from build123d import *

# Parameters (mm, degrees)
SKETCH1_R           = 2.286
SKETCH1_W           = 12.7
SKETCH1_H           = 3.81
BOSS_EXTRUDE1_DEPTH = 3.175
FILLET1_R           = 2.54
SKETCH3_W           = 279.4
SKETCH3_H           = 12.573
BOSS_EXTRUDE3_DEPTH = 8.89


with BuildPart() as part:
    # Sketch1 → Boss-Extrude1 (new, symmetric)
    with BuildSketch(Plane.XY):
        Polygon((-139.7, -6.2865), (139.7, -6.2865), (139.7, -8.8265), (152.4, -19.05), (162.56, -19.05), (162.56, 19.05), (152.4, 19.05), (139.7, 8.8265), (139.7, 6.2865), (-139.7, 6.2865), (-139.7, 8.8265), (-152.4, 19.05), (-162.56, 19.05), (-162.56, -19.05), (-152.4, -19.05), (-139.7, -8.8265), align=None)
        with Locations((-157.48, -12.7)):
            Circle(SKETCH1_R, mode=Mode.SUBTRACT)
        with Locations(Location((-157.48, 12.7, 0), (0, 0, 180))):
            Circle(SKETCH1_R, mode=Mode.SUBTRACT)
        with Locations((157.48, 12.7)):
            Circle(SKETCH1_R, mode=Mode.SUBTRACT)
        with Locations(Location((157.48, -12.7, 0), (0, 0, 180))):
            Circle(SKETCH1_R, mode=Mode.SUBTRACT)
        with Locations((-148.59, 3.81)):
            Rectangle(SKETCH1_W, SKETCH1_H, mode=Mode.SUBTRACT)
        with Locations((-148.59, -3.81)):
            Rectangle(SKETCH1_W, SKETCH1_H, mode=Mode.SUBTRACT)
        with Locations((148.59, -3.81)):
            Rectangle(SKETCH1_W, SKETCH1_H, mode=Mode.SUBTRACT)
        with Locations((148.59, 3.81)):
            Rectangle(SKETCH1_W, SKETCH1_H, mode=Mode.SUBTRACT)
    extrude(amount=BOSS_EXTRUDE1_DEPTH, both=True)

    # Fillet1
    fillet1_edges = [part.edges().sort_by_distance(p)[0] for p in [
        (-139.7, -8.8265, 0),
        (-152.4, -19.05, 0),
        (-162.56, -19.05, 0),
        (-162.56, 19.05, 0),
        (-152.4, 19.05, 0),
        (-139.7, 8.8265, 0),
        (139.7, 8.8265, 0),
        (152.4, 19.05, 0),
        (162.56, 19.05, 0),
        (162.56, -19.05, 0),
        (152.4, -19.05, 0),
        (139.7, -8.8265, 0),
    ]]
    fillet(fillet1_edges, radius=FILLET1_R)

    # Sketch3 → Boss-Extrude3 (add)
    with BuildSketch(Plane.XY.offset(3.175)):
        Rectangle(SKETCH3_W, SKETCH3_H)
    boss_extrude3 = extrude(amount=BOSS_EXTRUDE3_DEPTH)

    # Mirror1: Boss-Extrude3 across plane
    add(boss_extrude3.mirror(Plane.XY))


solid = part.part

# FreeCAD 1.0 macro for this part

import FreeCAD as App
import Part
import Sketcher

V = App.Vector
Q = App.Units.Quantity


def edges_at(feature, points):
    """Names of the edges that pass closest to the given points."""
    edges = feature.Shape.Edges
    near = lambda p: min(range(len(edges)), key=lambda i: edges[i].distToShape(Part.Vertex(*p))[0])
    return sorted({f"Edge{near(p) + 1}" for p in points})


def add_polygon(sketch, points):
    """Adds a closed chain of lines whose ends are joined by coincident constraints."""
    first, n = sketch.GeometryCount, len(points)
    for a, b in zip(points, points[1:] + points[:1]):
        sketch.addGeometry(Part.LineSegment(App.Vector(*a, 0), App.Vector(*b, 0)), False)
    for i in range(n):
        sketch.addConstraint(Sketcher.Constraint("Coincident", first + i, 2, first + (i + 1) % n, 1))

doc = App.newDocument("Part")
body = doc.addObject("PartDesign::Body", "Body")

# Sketch on XY plane
sketch1 = body.newObject("Sketcher::SketchObject", "Sketch")
sketch1.AttachmentSupport = (doc.getObject("XY_Plane"), [""])
sketch1.MapMode = "FlatFace"
add_polygon(sketch1, [(-139.7, -6.3), (139.7, -6.3), (139.7, -8.8), (152.4, -19.1), (162.6, -19.1), (162.6, 19.1), (152.4, 19.1), (139.7, 8.8), (139.7, 6.3), (-139.7, 6.3), (-139.7, 8.8), (-152.4, 19.1), (-162.6, 19.1), (-162.6, -19.1), (-152.4, -19.1), (-139.7, -8.8)])  # lines 0-15
sketch1.addGeometry(Part.Circle(V(-157.5, -12.7, 0), V(0, 0, 1), 2.3), False)  # 16
add_polygon(sketch1, [(-142.2, -5.7), (-154.9, -5.7), (-154.9, -1.9), (-142.2, -1.9)])  # lines 17-20
sketch1.addGeometry(Part.Circle(V(157.5, -12.7, 0), V(0, 0, 1), 2.3), False)  # 21
add_polygon(sketch1, [(154.9, -5.7), (142.2, -5.7), (142.2, -1.9), (154.9, -1.9)])  # lines 22-25
add_polygon(sketch1, [(-142.2, 1.9), (-154.9, 1.9), (-154.9, 5.7), (-142.2, 5.7)])  # lines 26-29
sketch1.addGeometry(Part.Circle(V(-157.5, 12.7, 0), V(0, 0, 1), 2.3), False)  # 30
add_polygon(sketch1, [(154.9, 1.9), (142.2, 1.9), (142.2, 5.7), (154.9, 5.7)])  # lines 31-34
sketch1.addGeometry(Part.Circle(V(157.5, 12.7, 0), V(0, 0, 1), 2.3), False)  # 35
sketch1.addConstraint([
    Sketcher.Constraint("Horizontal", 0),
    Sketcher.Constraint("Vertical", 1),
    Sketcher.Constraint("Horizontal", 3),
    Sketcher.Constraint("Vertical", 4),
    Sketcher.Constraint("Horizontal", 5),
    Sketcher.Constraint("Vertical", 7),
    Sketcher.Constraint("Horizontal", 8),
    Sketcher.Constraint("Vertical", 9),
    Sketcher.Constraint("Horizontal", 11),
    Sketcher.Constraint("Vertical", 12),
    Sketcher.Constraint("Horizontal", 13),
    Sketcher.Constraint("Vertical", 15),
    Sketcher.Constraint("Horizontal", 17),
    Sketcher.Constraint("Vertical", 18),
    Sketcher.Constraint("Horizontal", 19),
    Sketcher.Constraint("Vertical", 20),
    Sketcher.Constraint("Horizontal", 22),
    Sketcher.Constraint("Vertical", 23),
    Sketcher.Constraint("Horizontal", 24),
    Sketcher.Constraint("Vertical", 25),
    Sketcher.Constraint("Horizontal", 26),
    Sketcher.Constraint("Vertical", 27),
    Sketcher.Constraint("Horizontal", 28),
    Sketcher.Constraint("Vertical", 29),
    Sketcher.Constraint("Horizontal", 31),
    Sketcher.Constraint("Vertical", 32),
    Sketcher.Constraint("Horizontal", 33),
    Sketcher.Constraint("Vertical", 34),
    Sketcher.Constraint("Equal", 16, 21),
    Sketcher.Constraint("Equal", 21, 30),
    Sketcher.Constraint("Equal", 30, 35),
    Sketcher.Constraint("Symmetric", 21, 3, 30, 3, -1, 1),
    Sketcher.Constraint("Symmetric", 16, 3, 35, 3, -1, 1),
    Sketcher.Constraint("Symmetric", 0, 2, 8, 2, -1, 1),
    Sketcher.Constraint("Symmetric", 2, 2, 10, 2, -1, 1),
    Sketcher.Constraint("Symmetric", 4, 2, 12, 2, -1, 1),
    Sketcher.Constraint("Symmetric", 6, 2, 14, 2, -1, 1),
    Sketcher.Constraint("Symmetric", 24, 2, 26, 2, -1, 1),
    Sketcher.Constraint("Symmetric", 22, 2, 28, 2, -1, 1),
    Sketcher.Constraint("Symmetric", 19, 2, 31, 2, -1, 1),
    Sketcher.Constraint("Symmetric", 17, 2, 33, 2, -1, 1),
    Sketcher.Constraint("Symmetric", 16, 3, 21, 3, -2),
    Sketcher.Constraint("Symmetric", 6, 2, 9, 2, -2),
    Sketcher.Constraint("Symmetric", 5, 2, 10, 2, -2),
    Sketcher.Constraint("Symmetric", 20, 2, 22, 2, -2),
    Sketcher.Constraint("Symmetric", 18, 2, 24, 2, -2),
    Sketcher.Constraint("Parallel", 2, 10),
    Sketcher.Constraint("Parallel", 6, 14),
    Sketcher.Constraint("Diameter", 16, Q("0.18 in")),
    Sketcher.Constraint("DistanceX", 0, 1, 0, 2, Q("11 in")),
    Sketcher.Constraint("DistanceX", 3, 1, 3, 2, Q("0.4 in")),
    Sketcher.Constraint("DistanceX", 17, 2, 17, 1, Q("0.5 in")),
    Sketcher.Constraint("DistanceY", 1, 2, 1, 1, Q("0.1 in")),
    Sketcher.Constraint("DistanceY", 4, 1, 4, 2, Q("1.5 in")),
    Sketcher.Constraint("DistanceX", -1, 1, 2, 2, Q("6 in")),
    Sketcher.Constraint("DistanceY", 16, 3, 30, 3, Q("1 in")),
    Sketcher.Constraint("DistanceY", 18, 1, 18, 2, Q("0.15 in")),
    Sketcher.Constraint("DistanceX", 16, 3, -1, 1, Q("6.2 in")),
    Sketcher.Constraint("DistanceX", 17, 2, -1, 1, Q("6.1 in")),
    Sketcher.Constraint("DistanceY", 17, 2, 26, 2, Q("0.3 in")),
    Sketcher.Constraint("DistanceY", 0, 2, 6, 2, Q("0.595 in")),
])
pad1 = body.newObject("PartDesign::Pad", "Pad")
pad1.Profile = sketch1
pad1.Length = Q("0.25 in")
pad1.Midplane = True
doc.recompute()

fillet = body.newObject("PartDesign::Fillet", "Fillet")
fillet.Base = (pad1, edges_at(pad1, [
    (-139.7, -8.826, 0),
    (-152.4, -19.05, 0),
    (-162.56, -19.05, 0),
    (-162.56, 19.05, 0),
    (-152.4, 19.05, 0),
    (-139.7, 8.826, 0),
    (139.7, 8.826, 0),
    (152.4, 19.05, 0),
    (162.56, 19.05, 0),
    (162.56, -19.05, 0),
    (152.4, -19.05, 0),
    (139.7, -8.826, 0),
]))
fillet.Radius = Q("0.1 in")

# Sketch on XY plane
sketch2 = body.newObject("Sketcher::SketchObject", "Sketch001")
sketch2.AttachmentSupport = (doc.getObject("XY_Plane"), [""])
sketch2.MapMode = "FlatFace"
sketch2.AttachmentOffset = App.Placement(V(0, 0, 0.125 * 25.4), App.Rotation())
add_polygon(sketch2, [(-140, 6), (-140, -6), (140, -6), (140, 6)])  # lines 0-3
sketch2.addConstraint([
    Sketcher.Constraint("Vertical", 0),
    Sketcher.Constraint("Horizontal", 1),
    Sketcher.Constraint("Vertical", 2),
    Sketcher.Constraint("Horizontal", 3),
    Sketcher.Constraint("Symmetric", 0, 2, 2, 2, -1, 1),
    Sketcher.Constraint("DistanceX", 1, 1, 1, 2, Q("11 in")),
    Sketcher.Constraint("DistanceY", 0, 2, 0, 1, Q("0.495 in")),
])
pad2 = body.newObject("PartDesign::Pad", "Pad001")
pad2.Profile = sketch2
pad2.Length = Q("0.35 in")
doc.recompute()

mirrored = body.newObject("PartDesign::Mirrored", "Mirrored")
mirrored.Originals = [pad2]
mirrored.MirrorPlane = (doc.getObject("XY_Plane"), [""])
body.Tip = mirrored

doc.recompute()
